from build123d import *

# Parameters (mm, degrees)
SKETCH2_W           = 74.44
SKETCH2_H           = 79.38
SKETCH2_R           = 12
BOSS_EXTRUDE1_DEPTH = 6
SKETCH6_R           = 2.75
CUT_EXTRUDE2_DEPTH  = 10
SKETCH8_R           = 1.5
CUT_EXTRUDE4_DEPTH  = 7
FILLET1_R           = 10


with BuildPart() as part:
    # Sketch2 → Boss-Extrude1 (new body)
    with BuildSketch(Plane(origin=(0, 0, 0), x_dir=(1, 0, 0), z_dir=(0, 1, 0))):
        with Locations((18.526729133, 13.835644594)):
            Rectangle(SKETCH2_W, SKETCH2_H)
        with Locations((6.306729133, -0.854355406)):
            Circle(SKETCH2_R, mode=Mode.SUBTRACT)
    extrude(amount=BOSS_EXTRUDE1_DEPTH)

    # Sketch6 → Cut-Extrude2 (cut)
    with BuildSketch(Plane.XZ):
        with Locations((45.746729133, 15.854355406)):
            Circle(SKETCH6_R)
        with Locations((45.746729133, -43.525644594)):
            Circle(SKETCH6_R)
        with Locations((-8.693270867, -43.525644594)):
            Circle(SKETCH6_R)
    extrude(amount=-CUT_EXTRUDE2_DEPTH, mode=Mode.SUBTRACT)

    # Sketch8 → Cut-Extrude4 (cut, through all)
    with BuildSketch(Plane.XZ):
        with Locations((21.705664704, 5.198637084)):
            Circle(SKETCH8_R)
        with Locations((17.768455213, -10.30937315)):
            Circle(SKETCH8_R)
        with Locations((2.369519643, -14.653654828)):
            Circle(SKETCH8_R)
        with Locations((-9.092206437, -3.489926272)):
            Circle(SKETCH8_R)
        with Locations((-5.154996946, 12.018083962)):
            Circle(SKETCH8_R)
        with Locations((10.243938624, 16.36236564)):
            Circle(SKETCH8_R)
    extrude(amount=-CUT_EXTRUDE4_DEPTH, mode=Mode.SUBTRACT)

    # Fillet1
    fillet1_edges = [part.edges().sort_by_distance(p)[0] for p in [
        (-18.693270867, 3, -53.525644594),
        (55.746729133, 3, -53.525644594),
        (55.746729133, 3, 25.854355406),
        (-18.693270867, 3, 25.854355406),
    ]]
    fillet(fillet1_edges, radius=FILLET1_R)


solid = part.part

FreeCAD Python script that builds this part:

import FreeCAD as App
import Part
import Sketcher


def edges_at(feature, points):
    """Names of the edges that pass closest to the given points."""
    edges = feature.Shape.Edges
    near = lambda p: min(range(len(edges)), key=lambda i: edges[i].distToShape(Part.Vertex(*p))[0])
    return sorted({f"Edge{near(p) + 1}" for p in points})

doc = App.newDocument("Part")
body = doc.addObject("PartDesign::Body", "Body")

sketch1 = doc.addObject("Sketcher::SketchObject", "Sketch")
body.addObject(sketch1)
sketch1.AttachmentSupport = (doc.XZ_Plane, [""])
sketch1.MapMode = "FlatFace"
sketch1.addGeometry([
    Part.LineSegment(App.Vector(-19, -54, 0), App.Vector(-19, 26, 0)),
    Part.LineSegment(App.Vector(-19, 26, 0), App.Vector(56, 26, 0)),
    Part.LineSegment(App.Vector(56, 26, 0), App.Vector(56, -54, 0)),
    Part.LineSegment(App.Vector(56, -54, 0), App.Vector(-19, -54, 0)),
    Part.Circle(App.Vector(6, 1, 0), App.Vector(0, 0, 1), 12),
], False)
sketch1.addConstraint([
    Sketcher.Constraint("Coincident", 0, 2, 1, 1),
    Sketcher.Constraint("Coincident", 1, 2, 2, 1),
    Sketcher.Constraint("Coincident", 2, 2, 3, 1),
    Sketcher.Constraint("Coincident", 3, 2, 0, 1),
    Sketcher.Constraint("Vertical", 0),
    Sketcher.Constraint("Horizontal", 1),
    Sketcher.Constraint("Vertical", 2),
    Sketcher.Constraint("Horizontal", 3),
    Sketcher.Constraint("Diameter", 4, 24.0),
    Sketcher.Constraint("DistanceX", 0, 2, 4, 3, 25.0),
    Sketcher.Constraint("DistanceY", 4, 3, 0, 2, 25.0),
    Sketcher.Constraint("DistanceX", 1, 1, 1, 2, 74.44),
    Sketcher.Constraint("DistanceY", 0, 1, 0, 2, 79.38),
    Sketcher.Constraint("DistanceX", -1, 1, 4, 3, 6.306729),
    Sketcher.Constraint("DistanceY", -1, 1, 4, 3, 0.854355),
])
pad1 = doc.addObject("PartDesign::Pad", "Pad")
body.addObject(pad1)
pad1.Profile = sketch1
pad1.Length = 6
pad1.Reversed = True

sketch2 = doc.addObject("Sketcher::SketchObject", "Sketch001")
body.addObject(sketch2)
sketch2.AttachmentSupport = (doc.XZ_Plane, [""])
sketch2.MapMode = "FlatFace"
sketch2.addGeometry([
    Part.Circle(App.Vector(45.7, 15.9, 0), App.Vector(0, 0, 1), 2.8),
    Part.Circle(App.Vector(45.7, -43.5, 0), App.Vector(0, 0, 1), 2.8),
    Part.Circle(App.Vector(-8.7, -43.5, 0), App.Vector(0, 0, 1), 2.8),
], False)
sketch2.addConstraint([
    Sketcher.Constraint("Equal", 0, 1),
    Sketcher.Constraint("Equal", 1, 2),
    Sketcher.Constraint("Horizontal", 1, 3, 2, 3),
    Sketcher.Constraint("Vertical", 0, 3, 1, 3),
    Sketcher.Constraint("Diameter", 0, 5.5),
    Sketcher.Constraint("DistanceY", 1, 3, 0, 3, 59.38),
    Sketcher.Constraint("DistanceX", 2, 3, 1, 3, 54.44),
    Sketcher.Constraint("DistanceX", -1, 1, 0, 3, 45.746729),
    Sketcher.Constraint("DistanceY", -1, 1, 0, 3, 15.854355),
])
pocket1 = doc.addObject("PartDesign::Pocket", "Pocket")
body.addObject(pocket1)
pocket1.Profile = sketch2
pocket1.Length = 10

sketch3 = doc.addObject("Sketcher::SketchObject", "Sketch002")
body.addObject(sketch3)
sketch3.AttachmentSupport = (doc.XZ_Plane, [""])
sketch3.MapMode = "FlatFace"
sketch3.addGeometry([
    Part.Circle(App.Vector(21.7, 5.2, 0), App.Vector(0, 0, 1), 1.5),
    Part.Circle(App.Vector(17.8, -10.3, 0), App.Vector(0, 0, 1), 1.5),
    Part.Circle(App.Vector(2.4, -14.7, 0), App.Vector(0, 0, 1), 1.5),
    Part.Circle(App.Vector(-9.1, -3.5, 0), App.Vector(0, 0, 1), 1.5),
    Part.Circle(App.Vector(-5.2, 12, 0), App.Vector(0, 0, 1), 1.5),
    Part.Circle(App.Vector(10.2, 16.4, 0), App.Vector(0, 0, 1), 1.5),
], False)
sketch3.addConstraint([
    Sketcher.Constraint("Equal", 0, 1),
    Sketcher.Constraint("Equal", 1, 2),
    Sketcher.Constraint("Equal", 2, 3),
    Sketcher.Constraint("Equal", 3, 4),
    Sketcher.Constraint("Equal", 4, 5),
    Sketcher.Constraint("Diameter", 0, 3.0),
    Sketcher.Constraint("DistanceX", -1, 1, 2, 3, 2.36952),
    Sketcher.Constraint("DistanceX", -1, 1, 5, 3, 10.243939),
    Sketcher.Constraint("DistanceX", 1, 3, 0, 3, 3.937209),
    Sketcher.Constraint("DistanceY", 1, 3, 0, 3, 15.50801),
    Sketcher.Constraint("DistanceY", 2, 3, 1, 3, 4.344282),
    Sketcher.Constraint("DistanceY", 2, 3, 3, 3, 11.163729),
    Sketcher.Constraint("DistanceX", 3, 3, 1, 3, 26.860662),
    Sketcher.Constraint("DistanceX", 3, 3, 4, 3, 3.937209),
    Sketcher.Constraint("DistanceY", 3, 3, 4, 3, 15.50801),
    Sketcher.Constraint("DistanceY", 4, 3, 5, 3, 4.344282),
    Sketcher.Constraint("DistanceX", -1, 1, 0, 3, 21.705665),
    Sketcher.Constraint("DistanceY", -1, 1, 0, 3, 5.198637),
])
pocket2 = doc.addObject("PartDesign::Pocket", "Pocket001")
body.addObject(pocket2)
pocket2.Profile = sketch3
pocket2.Type = "ThroughAll"
doc.recompute()

fillet = doc.addObject("PartDesign::Fillet", "Fillet")
body.addObject(fillet)
fillet.Base = (pocket2, edges_at(pocket2, [
    (-18.693, 3, -53.526),
    (55.747, 3, -53.526),
    (55.747, 3, 25.854),
    (-18.693, 3, 25.854),
]))
fillet.Radius = 10

doc.recompute()
